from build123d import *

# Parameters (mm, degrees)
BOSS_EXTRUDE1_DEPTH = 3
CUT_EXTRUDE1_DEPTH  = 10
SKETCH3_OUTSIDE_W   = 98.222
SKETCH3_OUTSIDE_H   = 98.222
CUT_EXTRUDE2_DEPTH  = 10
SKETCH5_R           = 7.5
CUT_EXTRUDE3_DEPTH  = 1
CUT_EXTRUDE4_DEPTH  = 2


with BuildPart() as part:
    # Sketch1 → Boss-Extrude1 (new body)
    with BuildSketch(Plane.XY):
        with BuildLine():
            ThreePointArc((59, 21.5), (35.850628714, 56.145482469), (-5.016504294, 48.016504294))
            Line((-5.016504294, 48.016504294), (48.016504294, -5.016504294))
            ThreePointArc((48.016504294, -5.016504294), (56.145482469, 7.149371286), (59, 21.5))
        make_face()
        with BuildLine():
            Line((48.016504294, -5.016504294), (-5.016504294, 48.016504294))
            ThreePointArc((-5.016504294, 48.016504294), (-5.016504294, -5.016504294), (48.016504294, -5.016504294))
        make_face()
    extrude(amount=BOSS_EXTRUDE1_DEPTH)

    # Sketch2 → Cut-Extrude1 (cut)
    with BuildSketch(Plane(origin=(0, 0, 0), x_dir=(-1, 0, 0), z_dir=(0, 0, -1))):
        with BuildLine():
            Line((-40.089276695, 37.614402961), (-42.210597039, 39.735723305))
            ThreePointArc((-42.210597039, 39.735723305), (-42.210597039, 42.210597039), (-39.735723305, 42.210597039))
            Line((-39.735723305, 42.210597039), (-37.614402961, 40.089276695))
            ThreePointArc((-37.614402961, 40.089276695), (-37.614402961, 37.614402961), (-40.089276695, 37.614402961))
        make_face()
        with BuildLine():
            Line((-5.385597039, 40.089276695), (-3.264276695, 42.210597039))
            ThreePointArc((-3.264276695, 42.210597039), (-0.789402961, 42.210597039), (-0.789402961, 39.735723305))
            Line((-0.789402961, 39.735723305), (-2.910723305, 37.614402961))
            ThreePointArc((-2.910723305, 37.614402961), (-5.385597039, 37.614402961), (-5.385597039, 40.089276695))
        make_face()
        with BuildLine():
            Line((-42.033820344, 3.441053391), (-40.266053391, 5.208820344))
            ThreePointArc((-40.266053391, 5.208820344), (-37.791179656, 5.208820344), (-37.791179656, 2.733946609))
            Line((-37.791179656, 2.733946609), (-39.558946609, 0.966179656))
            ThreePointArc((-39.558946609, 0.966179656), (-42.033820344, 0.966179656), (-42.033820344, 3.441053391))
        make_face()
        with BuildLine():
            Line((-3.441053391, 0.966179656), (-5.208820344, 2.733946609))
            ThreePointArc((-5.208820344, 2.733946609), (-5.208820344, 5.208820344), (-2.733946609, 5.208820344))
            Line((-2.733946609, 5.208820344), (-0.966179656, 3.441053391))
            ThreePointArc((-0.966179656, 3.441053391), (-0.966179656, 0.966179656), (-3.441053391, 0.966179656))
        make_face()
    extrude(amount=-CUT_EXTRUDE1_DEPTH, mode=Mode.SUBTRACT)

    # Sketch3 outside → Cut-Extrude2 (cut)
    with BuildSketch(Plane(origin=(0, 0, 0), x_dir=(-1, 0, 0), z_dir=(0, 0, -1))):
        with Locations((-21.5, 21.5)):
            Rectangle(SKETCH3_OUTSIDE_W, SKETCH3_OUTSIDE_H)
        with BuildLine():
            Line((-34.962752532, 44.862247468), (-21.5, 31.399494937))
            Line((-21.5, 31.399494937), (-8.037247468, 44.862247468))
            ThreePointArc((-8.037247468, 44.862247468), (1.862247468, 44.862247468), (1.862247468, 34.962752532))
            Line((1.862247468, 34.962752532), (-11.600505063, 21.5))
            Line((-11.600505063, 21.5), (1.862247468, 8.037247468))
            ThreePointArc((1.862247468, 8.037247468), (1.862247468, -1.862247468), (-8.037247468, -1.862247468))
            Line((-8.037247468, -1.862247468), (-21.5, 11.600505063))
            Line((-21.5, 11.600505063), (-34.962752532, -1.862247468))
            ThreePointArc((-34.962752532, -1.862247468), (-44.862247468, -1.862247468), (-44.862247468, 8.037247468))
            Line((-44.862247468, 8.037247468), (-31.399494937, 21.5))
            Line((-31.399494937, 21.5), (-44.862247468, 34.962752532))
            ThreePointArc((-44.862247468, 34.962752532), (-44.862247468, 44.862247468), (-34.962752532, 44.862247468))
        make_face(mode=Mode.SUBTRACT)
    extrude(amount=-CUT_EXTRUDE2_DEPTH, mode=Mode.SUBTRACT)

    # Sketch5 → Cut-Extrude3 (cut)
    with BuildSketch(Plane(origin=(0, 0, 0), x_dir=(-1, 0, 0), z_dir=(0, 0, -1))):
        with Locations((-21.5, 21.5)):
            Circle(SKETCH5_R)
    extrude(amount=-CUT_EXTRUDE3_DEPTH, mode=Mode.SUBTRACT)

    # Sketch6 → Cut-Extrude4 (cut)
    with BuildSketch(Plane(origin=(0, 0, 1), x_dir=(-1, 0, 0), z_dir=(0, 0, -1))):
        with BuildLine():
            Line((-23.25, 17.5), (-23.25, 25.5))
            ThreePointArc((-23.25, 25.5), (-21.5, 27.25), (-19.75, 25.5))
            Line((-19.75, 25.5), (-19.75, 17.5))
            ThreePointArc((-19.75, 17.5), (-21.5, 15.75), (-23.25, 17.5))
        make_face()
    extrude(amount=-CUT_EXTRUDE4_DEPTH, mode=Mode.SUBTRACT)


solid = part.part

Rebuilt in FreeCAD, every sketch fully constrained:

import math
import FreeCAD as App
import Part
import Sketcher
from FreeCAD import Vector
Q = App.Units.Quantity

doc = App.newDocument("Part")
body = doc.addObject("PartDesign::Body", "Body")

# Sketch on XY plane
sketch1 = body.newObject("Sketcher::SketchObject", "Sketch")
sketch1.AttachmentSupport = (doc.getObject("XY_Plane"), [""])
sketch1.MapMode = "FlatFace"
sketch1.addGeometry(Part.ArcOfCircle(Part.Circle(Vector(22, 22, 0), Vector(0, 0, 1), 37), math.radians(0), math.radians(135)), False)
sketch1.addGeometry(Part.ArcOfCircle(Part.Circle(Vector(22, 22, 0), Vector(0, 0, 1), 37), math.radians(135), math.radians(315)), False)
sketch1.addGeometry(Part.ArcOfCircle(Part.Circle(Vector(22, 21, 0), Vector(0, 0, 1), 37), math.radians(-45), math.radians(0)), False)
sketch1.addConstraint(Sketcher.Constraint("Tangent", 0, 2, 1, 1))
sketch1.addConstraint(Sketcher.Constraint("Tangent", 1, 2, 2, 1))
sketch1.addConstraint(Sketcher.Constraint("Tangent", 2, 2, 0, 1))
sketch1.addConstraint(Sketcher.Constraint("Horizontal", 1, 3, 2, 2))
sketch1.addConstraint(Sketcher.Constraint("Radius", 0, Q("37.5 mm")))
sketch1.addConstraint(Sketcher.Constraint("DistanceX", -1, 1, 2, 2, Q("59 mm")))
sketch1.addConstraint(Sketcher.Constraint("DistanceY", -1, 1, 0, 3, Q("21.5 mm")))
sketch1.addConstraint(Sketcher.Constraint("DistanceX", 0, 2, 1, 2, Q("53.033009 mm")))
sketch1.addConstraint(Sketcher.Constraint("DistanceX", 0, 2, -1, 1, Q("5.016504 mm")))
pad1 = body.newObject("PartDesign::Pad", "Pad")
pad1.Profile = sketch1
pad1.Length = 3

# Sketch on XY plane
sketch2 = body.newObject("Sketcher::SketchObject", "Sketch001")
sketch2.AttachmentSupport = (doc.getObject("XY_Plane"), [""])
sketch2.MapMode = "FlatFace"
sketch2.addGeometry(Part.LineSegment(Vector(42.2, 39.7, 0), Vector(40.1, 37.6, 0)), False)
sketch2.addGeometry(Part.ArcOfCircle(Part.Circle(Vector(38.9, 38.9, 0), Vector(0, 0, 1), 1.8), math.radians(135), math.radians(315)), False)
sketch2.addGeometry(Part.LineSegment(Vector(37.6, 40.1, 0), Vector(39.7, 42.2, 0)), False)
sketch2.addGeometry(Part.ArcOfCircle(Part.Circle(Vector(41, 41, 0), Vector(0, 0, 1), 1.8), math.radians(-45), math.radians(135)), False)
sketch2.addGeometry(Part.LineSegment(Vector(3.3, 42.2, 0), Vector(5.4, 40.1, 0)), False)
sketch2.addGeometry(Part.ArcOfCircle(Part.Circle(Vector(4.1, 38.9, 0), Vector(0, 0, 1), 1.8), math.radians(-135), math.radians(45)), False)
sketch2.addGeometry(Part.LineSegment(Vector(2.9, 37.6, 0), Vector(0.8, 39.7, 0)), False)
sketch2.addGeometry(Part.ArcOfCircle(Part.Circle(Vector(2, 41, 0), Vector(0, 0, 1), 1.8), math.radians(45), math.radians(225)), False)
sketch2.addGeometry(Part.LineSegment(Vector(40.3, 5.2, 0), Vector(42, 3.4, 0)), False)
sketch2.addGeometry(Part.ArcOfCircle(Part.Circle(Vector(40.8, 2.2, 0), Vector(0, 0, 1), 1.8), math.radians(-135), math.radians(45)), False)
sketch2.addGeometry(Part.LineSegment(Vector(39.6, 1, 0), Vector(37.8, 2.7, 0)), False)
sketch2.addGeometry(Part.ArcOfCircle(Part.Circle(Vector(39, 4, 0), Vector(0, 0, 1), 1.8), math.radians(45), math.radians(225)), False)
sketch2.addGeometry(Part.LineSegment(Vector(5.2, 2.7, 0), Vector(3.4, 1, 0)), False)
sketch2.addGeometry(Part.ArcOfCircle(Part.Circle(Vector(2.2, 2.2, 0), Vector(0, 0, 1), 1.8), math.radians(135), math.radians(315)), False)
sketch2.addGeometry(Part.LineSegment(Vector(1, 3.4, 0), Vector(2.7, 5.2, 0)), False)
sketch2.addGeometry(Part.ArcOfCircle(Part.Circle(Vector(4, 4, 0), Vector(0, 0, 1), 1.8), math.radians(-45), math.radians(135)), False)
sketch2.addConstraint(Sketcher.Constraint("Tangent", 0, 2, 1, 2))
sketch2.addConstraint(Sketcher.Constraint("Tangent", 1, 1, 2, 1))
sketch2.addConstraint(Sketcher.Constraint("Tangent", 2, 2, 3, 2))
sketch2.addConstraint(Sketcher.Constraint("Tangent", 3, 1, 0, 1))
sketch2.addConstraint(Sketcher.Constraint("Tangent", 4, 2, 5, 2))
sketch2.addConstraint(Sketcher.Constraint("Tangent", 5, 1, 6, 1))
sketch2.addConstraint(Sketcher.Constraint("Tangent", 6, 2, 7, 2))
sketch2.addConstraint(Sketcher.Constraint("Tangent", 7, 1, 4, 1))
sketch2.addConstraint(Sketcher.Constraint("Tangent", 8, 2, 9, 2))
sketch2.addConstraint(Sketcher.Constraint("Tangent", 9, 1, 10, 1))
sketch2.addConstraint(Sketcher.Constraint("Tangent", 10, 2, 11, 2))
sketch2.addConstraint(Sketcher.Constraint("Tangent", 11, 1, 8, 1))
sketch2.addConstraint(Sketcher.Constraint("Tangent", 12, 2, 13, 2))
sketch2.addConstraint(Sketcher.Constraint("Tangent", 13, 1, 14, 1))
sketch2.addConstraint(Sketcher.Constraint("Tangent", 14, 2, 15, 2))
sketch2.addConstraint(Sketcher.Constraint("Tangent", 15, 1, 12, 1))
sketch2.addConstraint(Sketcher.Constraint("Equal", 1, 3))
sketch2.addConstraint(Sketcher.Constraint("Equal", 3, 5))
sketch2.addConstraint(Sketcher.Constraint("Equal", 5, 7))
sketch2.addConstraint(Sketcher.Constraint("Equal", 7, 9))
sketch2.addConstraint(Sketcher.Constraint("Equal", 9, 11))
sketch2.addConstraint(Sketcher.Constraint("Equal", 11, 13))
sketch2.addConstraint(Sketcher.Constraint("Equal", 13, 15))
sketch2.addConstraint(Sketcher.Constraint("Perpendicular", 2, 4))
sketch2.addConstraint(Sketcher.Constraint("Parallel", 6, 8))
sketch2.addConstraint(Sketcher.Constraint("Perpendicular", 10, 12))
sketch2.addConstraint(Sketcher.Constraint("Horizontal", 1, 3, 5, 3))
sketch2.addConstraint(Sketcher.Constraint("Horizontal", 3, 3, 7, 3))
sketch2.addConstraint(Sketcher.Constraint("Horizontal", 9, 3, 13, 3))
sketch2.addConstraint(Sketcher.Constraint("Horizontal", 11, 3, 15, 3))
sketch2.addConstraint(Sketcher.Constraint("Horizontal", 1, 1, 4, 2))
sketch2.addConstraint(Sketcher.Constraint("Radius", 1, Q("1.75 mm")))
sketch2.addConstraint(Sketcher.Constraint("Distance", 0, Q("3 mm")))
sketch2.addConstraint(Sketcher.Constraint("Distance", 8, Q("2.5 mm")))
sketch2.addConstraint(Sketcher.Constraint("DistanceX", 5, 3, 3, 3, Q("36.825 mm")))
sketch2.addConstraint(Sketcher.Constraint("DistanceX", 13, 3, 11, 3, Q("36.825 mm")))
sketch2.addConstraint(Sketcher.Constraint("DistanceX", -1, 1, 1, 3, Q("38.85184 mm")))
sketch2.addConstraint(Sketcher.Constraint("DistanceY", -1, 1, 1, 3, Q("38.85184 mm")))
sketch2.addConstraint(Sketcher.Constraint("DistanceX", -1, 1, 8, 2, Q("42.03382 mm")))
sketch2.addConstraint(Sketcher.Constraint("DistanceY", -1, 1, 9, 1, Q("0.96618 mm")))
pocket1 = body.newObject("PartDesign::Pocket", "Pocket")
pocket1.Profile = sketch2
pocket1.Length = 10
pocket1.Reversed = True

# Sketch on XY plane
sketch3 = body.newObject("Sketcher::SketchObject", "Sketch002")
sketch3.AttachmentSupport = (doc.getObject("XY_Plane"), [""])
sketch3.MapMode = "FlatFace"
sketch3.addGeometry(Part.LineSegment(Vector(71, 71, 0), Vector(71, -28, 0)), False)
sketch3.addGeometry(Part.LineSegment(Vector(71, -28, 0), Vector(-28, -28, 0)), False)
sketch3.addGeometry(Part.LineSegment(Vector(-28, -28, 0), Vector(-28, 71, 0)), False)
sketch3.addGeometry(Part.LineSegment(Vector(-28, 71, 0), Vector(71, 71, 0)), False)
sketch3.addGeometry(Part.ArcOfCircle(Part.Circle(Vector(40, 40, 0), Vector(0, 0, 1), 7), math.radians(-45), math.radians(135)), False)
sketch3.addGeometry(Part.LineSegment(Vector(35, 45, 0), Vector(22, 31, 0)), False)
sketch3.addGeometry(Part.LineSegment(Vector(22, 31, 0), Vector(8, 45, 0)), False)
sketch3.addGeometry(Part.ArcOfCircle(Part.Circle(Vector(3, 40, 0), Vector(0, 0, 1), 7), math.radians(45), math.radians(225)), False)
sketch3.addGeometry(Part.LineSegment(Vector(-2, 35, 0), Vector(12, 22, 0)), False)
sketch3.addGeometry(Part.LineSegment(Vector(12, 22, 0), Vector(-2, 8, 0)), False)
sketch3.addGeometry(Part.ArcOfCircle(Part.Circle(Vector(3, 3, 0), Vector(0, 0, 1), 7), math.radians(135), math.radians(315)), False)
sketch3.addGeometry(Part.LineSegment(Vector(8, -2, 0), Vector(22, 12, 0)), False)
sketch3.addGeometry(Part.LineSegment(Vector(22, 12, 0), Vector(35, -2, 0)), False)
sketch3.addGeometry(Part.ArcOfCircle(Part.Circle(Vector(40, 3, 0), Vector(0, 0, 1), 7), math.radians(-135), math.radians(45)), False)
sketch3.addGeometry(Part.LineSegment(Vector(45, 8, 0), Vector(31, 22, 0)), False)
sketch3.addGeometry(Part.LineSegment(Vector(31, 22, 0), Vector(45, 35, 0)), False)
sketch3.addConstraint(Sketcher.Constraint("Coincident", 0, 2, 1, 1))
sketch3.addConstraint(Sketcher.Constraint("Coincident", 1, 2, 2, 1))
sketch3.addConstraint(Sketcher.Constraint("Coincident", 2, 2, 3, 1))
sketch3.addConstraint(Sketcher.Constraint("Coincident", 3, 2, 0, 1))
sketch3.addConstraint(Sketcher.Constraint("Tangent", 4, 2, 5, 1))
sketch3.addConstraint(Sketcher.Constraint("Coincident", 5, 2, 6, 1))
sketch3.addConstraint(Sketcher.Constraint("Tangent", 6, 2, 7, 1))
sketch3.addConstraint(Sketcher.Constraint("Tangent", 7, 2, 8, 1))
sketch3.addConstraint(Sketcher.Constraint("Coincident", 8, 2, 9, 1))
sketch3.addConstraint(Sketcher.Constraint("Tangent", 9, 2, 10, 1))
sketch3.addConstraint(Sketcher.Constraint("Tangent", 10, 2, 11, 1))
sketch3.addConstraint(Sketcher.Constraint("Coincident", 11, 2, 12, 1))
sketch3.addConstraint(Sketcher.Constraint("Tangent", 12, 2, 13, 1))
sketch3.addConstraint(Sketcher.Constraint("Tangent", 13, 2, 14, 1))
sketch3.addConstraint(Sketcher.Constraint("Coincident", 14, 2, 15, 1))
sketch3.addConstraint(Sketcher.Constraint("Tangent", 15, 2, 4, 1))
sketch3.addConstraint(Sketcher.Constraint("Vertical", 0))
sketch3.addConstraint(Sketcher.Constraint("Horizontal", 1))
sketch3.addConstraint(Sketcher.Constraint("Vertical", 2))
sketch3.addConstraint(Sketcher.Constraint("Horizontal", 3))
sketch3.addConstraint(Sketcher.Constraint("Equal", 4, 7))
sketch3.addConstraint(Sketcher.Constraint("Equal", 7, 10))
sketch3.addConstraint(Sketcher.Constraint("Equal", 10, 13))
sketch3.addConstraint(Sketcher.Constraint("Perpendicular", 5, 6))
sketch3.addConstraint(Sketcher.Constraint("Parallel", 6, 8))
sketch3.addConstraint(Sketcher.Constraint("Perpendicular", 8, 9))
sketch3.addConstraint(Sketcher.Constraint("Parallel", 9, 11))
sketch3.addConstraint(Sketcher.Constraint("Perpendicular", 11, 12))
sketch3.addConstraint(Sketcher.Constraint("Parallel", 12, 14))
sketch3.addConstraint(Sketcher.Constraint("Perpendicular", 14, 15))
sketch3.addConstraint(Sketcher.Constraint("Horizontal", 4, 3, 7, 3))
sketch3.addConstraint(Sketcher.Constraint("Horizontal", 10, 3, 13, 3))
sketch3.addConstraint(Sketcher.Constraint("Horizontal", 4, 2, 6, 2))
sketch3.addConstraint(Sketcher.Constraint("Horizontal", 8, 2, 14, 2))
sketch3.addConstraint(Sketcher.Constraint("Vertical", 7, 3, 10, 3))
sketch3.addConstraint(Sketcher.Constraint("Equal", 3, 0))
sketch3.addConstraint(Sketcher.Constraint("Equal", 6, 8))
sketch3.addConstraint(Sketcher.Constraint("Radius", 4, Q("7 mm")))
sketch3.addConstraint(Sketcher.Constraint("DistanceX", -1, 1, 5, 2, Q("21.5 mm")))
sketch3.addConstraint(Sketcher.Constraint("DistanceY", -1, 1, 8, 2, Q("21.5 mm")))
sketch3.addConstraint(Sketcher.Constraint("DistanceX", 1, 2, 1, 1, Q("98.222 mm")))
sketch3.addConstraint(Sketcher.Constraint("DistanceX", -1, 1, 0, 2, Q("70.611 mm")))
sketch3.addConstraint(Sketcher.Constraint("DistanceY", 0, 2, -1, 1, Q("27.611 mm")))
sketch3.addConstraint(Sketcher.Constraint("DistanceX", 7, 3, 4, 3, Q("36.825 mm")))
pocket2 = body.newObject("PartDesign::Pocket", "Pocket001")
pocket2.Profile = sketch3
pocket2.Length = 10
pocket2.Reversed = True

# Sketch on XY plane
sketch4 = body.newObject("Sketcher::SketchObject", "Sketch003")
sketch4.AttachmentSupport = (doc.getObject("XY_Plane"), [""])
sketch4.MapMode = "FlatFace"
sketch4.addGeometry(Part.Circle(Vector(22, 22, 0), Vector(0, 0, 1), 8), False)
sketch4.addConstraint(Sketcher.Constraint("Diameter", 0, Q("15 mm")))
sketch4.addConstraint(Sketcher.Constraint("DistanceX", -1, 1, 0, 3, Q("21.5 mm")))
sketch4.addConstraint(Sketcher.Constraint("DistanceY", -1, 1, 0, 3, Q("21.5 mm")))
pocket3 = body.newObject("PartDesign::Pocket", "Pocket002")
pocket3.Profile = sketch4
pocket3.Length = 1
pocket3.Reversed = True

# Sketch on XY plane
sketch5 = body.newObject("Sketcher::SketchObject", "Sketch004")
sketch5.AttachmentSupport = (doc.getObject("XY_Plane"), [""])
sketch5.MapMode = "FlatFace"
sketch5.AttachmentOffset = App.Placement(Vector(0, 0, 1), App.Rotation())
sketch5.addGeometry(Part.LineSegment(Vector(23.2, 25.5, 0), Vector(23.2, 17.5, 0)), False)
sketch5.addGeometry(Part.ArcOfCircle(Part.Circle(Vector(21.5, 17.5, 0), Vector(0, 0, 1), 1.8), math.radians(180), math.radians(360)), False)
sketch5.addGeometry(Part.LineSegment(Vector(19.8, 17.5, 0), Vector(19.8, 25.5, 0)), False)
sketch5.addGeometry(Part.ArcOfCircle(Part.Circle(Vector(21.5, 25.5, 0), Vector(0, 0, 1), 1.8), math.radians(0), math.radians(180)), False)
sketch5.addConstraint(Sketcher.Constraint("Tangent", 0, 2, 1, 2))
sketch5.addConstraint(Sketcher.Constraint("Tangent", 1, 1, 2, 1))
sketch5.addConstraint(Sketcher.Constraint("Tangent", 2, 2, 3, 2))
sketch5.addConstraint(Sketcher.Constraint("Tangent", 3, 1, 0, 1))
sketch5.addConstraint(Sketcher.Constraint("Vertical", 0))
sketch5.addConstraint(Sketcher.Constraint("Vertical", 2))
sketch5.addConstraint(Sketcher.Constraint("DistanceY", 0, 2, 0, 1, Q("8 mm")))
sketch5.addConstraint(Sketcher.Constraint("Radius", 1, Q("1.75 mm")))
sketch5.addConstraint(Sketcher.Constraint("DistanceX", -1, 1, 1, 3, Q("21.5 mm")))
sketch5.addConstraint(Sketcher.Constraint("DistanceY", -1, 1, 1, 3, Q("17.5 mm")))
pocket4 = body.newObject("PartDesign::Pocket", "Pocket003")
pocket4.Profile = sketch5
pocket4.Length = 2
pocket4.Reversed = True

doc.recompute()
